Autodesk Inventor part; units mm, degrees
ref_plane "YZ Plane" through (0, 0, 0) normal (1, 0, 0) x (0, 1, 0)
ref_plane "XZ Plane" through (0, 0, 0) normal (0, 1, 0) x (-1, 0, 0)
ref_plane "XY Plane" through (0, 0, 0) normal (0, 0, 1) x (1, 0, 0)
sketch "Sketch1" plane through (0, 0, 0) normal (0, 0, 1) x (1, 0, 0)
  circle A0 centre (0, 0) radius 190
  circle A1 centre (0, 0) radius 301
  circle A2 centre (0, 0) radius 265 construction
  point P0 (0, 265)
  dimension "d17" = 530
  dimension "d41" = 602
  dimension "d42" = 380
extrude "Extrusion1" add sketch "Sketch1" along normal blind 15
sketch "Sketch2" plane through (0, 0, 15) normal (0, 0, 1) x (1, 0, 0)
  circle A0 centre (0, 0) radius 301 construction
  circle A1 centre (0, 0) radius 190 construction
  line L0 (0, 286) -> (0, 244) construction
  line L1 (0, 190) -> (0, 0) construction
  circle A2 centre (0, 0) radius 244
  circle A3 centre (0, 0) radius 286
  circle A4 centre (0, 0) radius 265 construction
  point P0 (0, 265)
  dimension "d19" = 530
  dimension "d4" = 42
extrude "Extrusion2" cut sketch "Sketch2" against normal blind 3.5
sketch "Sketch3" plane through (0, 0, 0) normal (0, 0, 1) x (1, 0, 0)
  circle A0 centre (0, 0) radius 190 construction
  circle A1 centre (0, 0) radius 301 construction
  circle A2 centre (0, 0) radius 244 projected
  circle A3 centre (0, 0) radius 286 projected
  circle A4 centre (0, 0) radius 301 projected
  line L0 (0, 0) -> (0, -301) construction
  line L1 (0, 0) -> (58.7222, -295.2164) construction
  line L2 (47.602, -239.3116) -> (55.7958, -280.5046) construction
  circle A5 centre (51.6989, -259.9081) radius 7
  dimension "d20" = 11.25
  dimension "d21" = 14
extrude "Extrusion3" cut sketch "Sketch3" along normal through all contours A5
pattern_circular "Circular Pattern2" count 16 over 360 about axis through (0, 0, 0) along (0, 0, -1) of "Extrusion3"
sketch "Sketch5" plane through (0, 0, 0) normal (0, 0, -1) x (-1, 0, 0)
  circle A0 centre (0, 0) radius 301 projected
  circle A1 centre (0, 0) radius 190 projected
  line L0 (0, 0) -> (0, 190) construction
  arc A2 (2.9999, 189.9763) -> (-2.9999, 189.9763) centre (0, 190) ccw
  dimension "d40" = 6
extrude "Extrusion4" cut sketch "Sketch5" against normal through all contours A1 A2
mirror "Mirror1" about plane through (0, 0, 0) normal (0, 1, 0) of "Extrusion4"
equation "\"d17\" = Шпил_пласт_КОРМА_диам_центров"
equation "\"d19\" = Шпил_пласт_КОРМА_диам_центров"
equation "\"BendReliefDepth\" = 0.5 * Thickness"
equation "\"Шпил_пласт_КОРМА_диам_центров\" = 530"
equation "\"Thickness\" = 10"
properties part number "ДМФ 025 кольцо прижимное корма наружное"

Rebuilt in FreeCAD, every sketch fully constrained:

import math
import FreeCAD as App
import Part
import Sketcher
from FreeCAD import Vector
Q = App.Units.Quantity

doc = App.newDocument("Part")
body = doc.addObject("PartDesign::Body", "Body")

# Sketch on XY plane
sketch1 = doc.addObject("Sketcher::SketchObject", "Sketch")
body.addObject(sketch1)
sketch1.AttachmentSupport = (doc.XY_Plane, [""])
sketch1.MapMode = "FlatFace"
sketch1.addGeometry([
    Part.Circle(Vector(0, 0, 0), Vector(0, 0, 1), 301),
    Part.Circle(Vector(0, 0, 0), Vector(0, 0, 1), 190),
], False)
sketch1.addConstraint([
    Sketcher.Constraint("Coincident", 0, 3, -1, 1),
    Sketcher.Constraint("Coincident", 1, 3, -1, 1),
    Sketcher.Constraint("Diameter", 0, Q("602 mm")),
    Sketcher.Constraint("Diameter", 1, Q("380 mm")),
])
pad1 = doc.addObject("PartDesign::Pad", "Pad")
body.addObject(pad1)
pad1.Profile = sketch1
pad1.Length = 15

# Sketch on XY plane
sketch2 = doc.addObject("Sketcher::SketchObject", "Sketch001")
body.addObject(sketch2)
sketch2.AttachmentSupport = (doc.XY_Plane, [""])
sketch2.MapMode = "FlatFace"
sketch2.AttachmentOffset = App.Placement(Vector(0, 0, 15), App.Rotation())
sketch2.addGeometry([
    Part.Circle(Vector(0, 0, 0), Vector(0, 0, 1), 286),
    Part.Circle(Vector(0, 0, 0), Vector(0, 0, 1), 244),
], False)
sketch2.addConstraint([
    Sketcher.Constraint("Coincident", 0, 3, -1, 1),
    Sketcher.Constraint("Coincident", 1, 3, -1, 1),
    Sketcher.Constraint("Diameter", 0, Q("572 mm")),
    Sketcher.Constraint("Diameter", 1, Q("488 mm")),
])
pocket1 = doc.addObject("PartDesign::Pocket", "Pocket")
body.addObject(pocket1)
pocket1.Profile = sketch2
pocket1.Length = 3.5

# Sketch on XY plane
sketch3 = doc.addObject("Sketcher::SketchObject", "Sketch002")
body.addObject(sketch3)
sketch3.AttachmentSupport = (doc.XY_Plane, [""])
sketch3.MapMode = "FlatFace"
sketch3.addGeometry(Part.Circle(Vector(52, -260, 0), Vector(0, 0, 1), 7), False)
sketch3.addConstraint([
    Sketcher.Constraint("Diameter", 0, Q("14 mm")),
    Sketcher.Constraint("DistanceX", -1, 1, 0, 3, Q("51.699 mm")),
    Sketcher.Constraint("DistanceY", 0, 3, -1, 1, Q("259.908 mm")),
])
pocket2 = doc.addObject("PartDesign::Pocket", "Pocket001")
body.addObject(pocket2)
pocket2.Profile = sketch3
pocket2.Type = "ThroughAll"
pocket2.Reversed = True
doc.recompute()

polarpattern = doc.addObject("PartDesign::PolarPattern", "PolarPattern")
body.addObject(polarpattern)
polarpattern.Originals = [pocket2]
polarpattern.Axis = (doc.Z_Axis, [""])
polarpattern.Angle = 360
polarpattern.Occurrences = 16
body.Tip = polarpattern

# Sketch on XY plane
sketch4 = doc.addObject("Sketcher::SketchObject", "Sketch003")
body.addObject(sketch4)
sketch4.AttachmentSupport = (doc.XY_Plane, [""])
sketch4.MapMode = "FlatFace"
sketch4.addGeometry([
    Part.ArcOfCircle(Part.Circle(Vector(0, 0, 0), Vector(0, 0, 1), 190), math.radians(89.1), math.radians(90.9)),
    Part.ArcOfCircle(Part.Circle(Vector(0, 190, 0), Vector(0, 0, 1), 3), math.radians(0), math.radians(180)),
], False)
sketch4.addConstraint([
    Sketcher.Constraint("Coincident", 0, 1, 1, 1),
    Sketcher.Constraint("Coincident", 1, 2, 0, 2),
    Sketcher.Constraint("Coincident", 0, 3, -1, 1),
    Sketcher.Constraint("PointOnObject", 1, 3, -2),
    Sketcher.Constraint("Radius", 1, Q("3 mm")),
    Sketcher.Constraint("Radius", 0, Q("190 mm")),
    Sketcher.Constraint("DistanceY", -1, 1, 1, 3, Q("190 mm")),
])
pocket3 = doc.addObject("PartDesign::Pocket", "Pocket002")
body.addObject(pocket3)
pocket3.Profile = sketch4
pocket3.Type = "ThroughAll"
pocket3.Reversed = True
doc.recompute()

mirrored = doc.addObject("PartDesign::Mirrored", "Mirrored")
body.addObject(mirrored)
mirrored.Originals = [pocket3]
mirrored.MirrorPlane = (doc.XZ_Plane, [""])
body.Tip = mirrored

doc.recompute()
